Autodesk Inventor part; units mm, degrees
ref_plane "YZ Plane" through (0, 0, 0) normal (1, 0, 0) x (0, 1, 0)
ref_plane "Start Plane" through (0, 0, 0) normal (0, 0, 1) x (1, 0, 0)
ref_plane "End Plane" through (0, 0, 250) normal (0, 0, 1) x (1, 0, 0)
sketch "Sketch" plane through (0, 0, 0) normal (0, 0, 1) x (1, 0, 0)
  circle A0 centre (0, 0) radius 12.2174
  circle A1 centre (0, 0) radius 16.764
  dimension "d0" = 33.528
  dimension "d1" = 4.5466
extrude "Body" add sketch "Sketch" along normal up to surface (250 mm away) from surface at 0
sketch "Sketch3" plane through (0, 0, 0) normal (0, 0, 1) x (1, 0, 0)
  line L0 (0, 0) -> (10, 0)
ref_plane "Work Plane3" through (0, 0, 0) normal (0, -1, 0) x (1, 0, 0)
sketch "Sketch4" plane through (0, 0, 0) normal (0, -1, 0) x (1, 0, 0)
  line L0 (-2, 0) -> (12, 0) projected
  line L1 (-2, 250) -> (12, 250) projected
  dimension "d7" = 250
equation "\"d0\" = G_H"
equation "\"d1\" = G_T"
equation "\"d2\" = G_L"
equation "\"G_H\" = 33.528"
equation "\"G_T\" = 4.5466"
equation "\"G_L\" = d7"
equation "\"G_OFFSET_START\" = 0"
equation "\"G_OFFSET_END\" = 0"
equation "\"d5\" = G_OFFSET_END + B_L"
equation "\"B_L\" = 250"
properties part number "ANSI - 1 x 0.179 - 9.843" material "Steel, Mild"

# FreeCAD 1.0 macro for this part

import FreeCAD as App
import Part
import Sketcher
Q = App.Units.Quantity

doc = App.newDocument("Part")
body = doc.addObject("PartDesign::Body", "Body")

sketch1 = doc.addObject("Sketcher::SketchObject", "Sketch")
body.addObject(sketch1)
sketch1.AttachmentSupport = (doc.XY_Plane, [""])
sketch1.MapMode = "FlatFace"
sketch1.addGeometry(Part.Circle(App.Vector(0, 0, 0), App.Vector(0, 0, 1), 17), False)
sketch1.addGeometry(Part.Circle(App.Vector(0, 0, 0), App.Vector(0, 0, 1), 12), False)
sketch1.addConstraint(Sketcher.Constraint("Coincident", 0, 3, -1, 1))
sketch1.addConstraint(Sketcher.Constraint("Coincident", 1, 3, -1, 1))
sketch1.addConstraint(Sketcher.Constraint("Diameter", 0, Q("1.32 in")))
sketch1.addConstraint(Sketcher.Constraint("Diameter", 1, Q("0.962 in")))
pad1 = doc.addObject("PartDesign::Pad", "Pad")
body.addObject(pad1)
pad1.Profile = sketch1
pad1.Length = 250

doc.recompute()
